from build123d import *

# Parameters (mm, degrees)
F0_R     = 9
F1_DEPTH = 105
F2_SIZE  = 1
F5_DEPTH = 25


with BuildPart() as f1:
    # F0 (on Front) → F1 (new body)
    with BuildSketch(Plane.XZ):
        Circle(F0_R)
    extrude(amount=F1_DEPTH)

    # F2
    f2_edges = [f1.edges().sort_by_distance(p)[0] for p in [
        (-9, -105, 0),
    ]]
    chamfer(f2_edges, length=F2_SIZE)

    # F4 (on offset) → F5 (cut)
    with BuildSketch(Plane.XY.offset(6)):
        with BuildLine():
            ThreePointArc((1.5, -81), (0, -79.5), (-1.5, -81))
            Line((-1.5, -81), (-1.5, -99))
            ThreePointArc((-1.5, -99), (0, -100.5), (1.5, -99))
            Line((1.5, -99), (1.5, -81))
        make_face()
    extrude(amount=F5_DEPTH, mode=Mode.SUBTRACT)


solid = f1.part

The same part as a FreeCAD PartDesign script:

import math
import FreeCAD as App
import Part
import Sketcher

V = App.Vector


def edges_at(feature, points):
    """Names of the edges that pass closest to the given points."""
    edges = feature.Shape.Edges
    near = lambda p: min(range(len(edges)), key=lambda i: edges[i].distToShape(Part.Vertex(*p))[0])
    return sorted({f"Edge{near(p) + 1}" for p in points})

doc = App.newDocument("Part")
params = doc.addObject("Spreadsheet::Sheet", "Params")
for row, (alias, value) in enumerate([
    ("sketch1_diameter", "18 mm"),
    ("pad1_length", "105 mm"),
    ("chamfer_size", "1 mm"),
    ("sketch2_radius", "1.5 mm"),
    ("sketch2_height", "18 mm"),
    ("pocket1_length", "25 mm"),
], start=1):
    params.set(f"A{row}", alias)
    params.set(f"B{row}", "=" + value)
    params.setAlias(f"B{row}", alias)

body = doc.addObject("PartDesign::Body", "Body")

# Sketch on XZ plane
sketch1 = body.newObject("Sketcher::SketchObject", "Sketch")
sketch1.AttachmentSupport = (doc.getObject("XZ_Plane"), [""])
sketch1.MapMode = "FlatFace"
sketch1.addGeometry(Part.Circle(V(0, 0, 0), V(0, 0, 1), 9), False)
sketch1.addConstraint(Sketcher.Constraint("Coincident", 0, 3, -1, 1))
sketch1.addConstraint(Sketcher.Constraint("Diameter", 0, 18.0))
sketch1.setExpression("Constraints[1]", "Params.sketch1_diameter")
pad1 = body.newObject("PartDesign::Pad", "Pad")
pad1.Profile = sketch1
pad1.setExpression("Length", "Params.pad1_length")
doc.recompute()

chamfer = body.newObject("PartDesign::Chamfer", "Chamfer")
chamfer.Base = (pad1, edges_at(pad1, [(-9, -105, 0)]))
chamfer.setExpression("Size", "Params.chamfer_size")

# Sketch on XY plane
sketch2 = body.newObject("Sketcher::SketchObject", "Sketch001")
sketch2.AttachmentSupport = (doc.getObject("XY_Plane"), [""])
sketch2.MapMode = "FlatFace"
sketch2.AttachmentOffset = App.Placement(V(0, 0, 6), App.Rotation())
sketch2.addGeometry(Part.ArcOfCircle(Part.Circle(V(0, -81, 0), V(0, 0, 1), 1.5), math.radians(0), math.radians(180)), False)
sketch2.addGeometry(Part.LineSegment(V(-1.5, -81, 0), V(-1.5, -99, 0)), False)
sketch2.addGeometry(Part.ArcOfCircle(Part.Circle(V(0, -99, 0), V(0, 0, 1), 1.5), math.radians(180), math.radians(360)), False)
sketch2.addGeometry(Part.LineSegment(V(1.5, -99, 0), V(1.5, -81, 0)), False)
sketch2.addConstraint(Sketcher.Constraint("Tangent", 0, 2, 1, 1))
sketch2.addConstraint(Sketcher.Constraint("Tangent", 1, 2, 2, 1))
sketch2.addConstraint(Sketcher.Constraint("Tangent", 2, 2, 3, 1))
sketch2.addConstraint(Sketcher.Constraint("Tangent", 3, 2, 0, 1))
sketch2.addConstraint(Sketcher.Constraint("Vertical", 1))
sketch2.addConstraint(Sketcher.Constraint("Vertical", 3))
sketch2.addConstraint(Sketcher.Constraint("PointOnObject", 0, 3, -2))
sketch2.addConstraint(Sketcher.Constraint("Radius", 0, 1.5))
sketch2.addConstraint(Sketcher.Constraint("DistanceY", 1, 2, 1, 1, 18.0))
sketch2.addConstraint(Sketcher.Constraint("DistanceY", 0, 3, -1, 1, 81.0))
sketch2.setExpression("Constraints[7]", "Params.sketch2_radius")
sketch2.setExpression("Constraints[8]", "Params.sketch2_height")
pocket1 = body.newObject("PartDesign::Pocket", "Pocket")
pocket1.Profile = sketch2
pocket1.setExpression("Length", "Params.pocket1_length")
pocket1.Reversed = True

doc.recompute()
